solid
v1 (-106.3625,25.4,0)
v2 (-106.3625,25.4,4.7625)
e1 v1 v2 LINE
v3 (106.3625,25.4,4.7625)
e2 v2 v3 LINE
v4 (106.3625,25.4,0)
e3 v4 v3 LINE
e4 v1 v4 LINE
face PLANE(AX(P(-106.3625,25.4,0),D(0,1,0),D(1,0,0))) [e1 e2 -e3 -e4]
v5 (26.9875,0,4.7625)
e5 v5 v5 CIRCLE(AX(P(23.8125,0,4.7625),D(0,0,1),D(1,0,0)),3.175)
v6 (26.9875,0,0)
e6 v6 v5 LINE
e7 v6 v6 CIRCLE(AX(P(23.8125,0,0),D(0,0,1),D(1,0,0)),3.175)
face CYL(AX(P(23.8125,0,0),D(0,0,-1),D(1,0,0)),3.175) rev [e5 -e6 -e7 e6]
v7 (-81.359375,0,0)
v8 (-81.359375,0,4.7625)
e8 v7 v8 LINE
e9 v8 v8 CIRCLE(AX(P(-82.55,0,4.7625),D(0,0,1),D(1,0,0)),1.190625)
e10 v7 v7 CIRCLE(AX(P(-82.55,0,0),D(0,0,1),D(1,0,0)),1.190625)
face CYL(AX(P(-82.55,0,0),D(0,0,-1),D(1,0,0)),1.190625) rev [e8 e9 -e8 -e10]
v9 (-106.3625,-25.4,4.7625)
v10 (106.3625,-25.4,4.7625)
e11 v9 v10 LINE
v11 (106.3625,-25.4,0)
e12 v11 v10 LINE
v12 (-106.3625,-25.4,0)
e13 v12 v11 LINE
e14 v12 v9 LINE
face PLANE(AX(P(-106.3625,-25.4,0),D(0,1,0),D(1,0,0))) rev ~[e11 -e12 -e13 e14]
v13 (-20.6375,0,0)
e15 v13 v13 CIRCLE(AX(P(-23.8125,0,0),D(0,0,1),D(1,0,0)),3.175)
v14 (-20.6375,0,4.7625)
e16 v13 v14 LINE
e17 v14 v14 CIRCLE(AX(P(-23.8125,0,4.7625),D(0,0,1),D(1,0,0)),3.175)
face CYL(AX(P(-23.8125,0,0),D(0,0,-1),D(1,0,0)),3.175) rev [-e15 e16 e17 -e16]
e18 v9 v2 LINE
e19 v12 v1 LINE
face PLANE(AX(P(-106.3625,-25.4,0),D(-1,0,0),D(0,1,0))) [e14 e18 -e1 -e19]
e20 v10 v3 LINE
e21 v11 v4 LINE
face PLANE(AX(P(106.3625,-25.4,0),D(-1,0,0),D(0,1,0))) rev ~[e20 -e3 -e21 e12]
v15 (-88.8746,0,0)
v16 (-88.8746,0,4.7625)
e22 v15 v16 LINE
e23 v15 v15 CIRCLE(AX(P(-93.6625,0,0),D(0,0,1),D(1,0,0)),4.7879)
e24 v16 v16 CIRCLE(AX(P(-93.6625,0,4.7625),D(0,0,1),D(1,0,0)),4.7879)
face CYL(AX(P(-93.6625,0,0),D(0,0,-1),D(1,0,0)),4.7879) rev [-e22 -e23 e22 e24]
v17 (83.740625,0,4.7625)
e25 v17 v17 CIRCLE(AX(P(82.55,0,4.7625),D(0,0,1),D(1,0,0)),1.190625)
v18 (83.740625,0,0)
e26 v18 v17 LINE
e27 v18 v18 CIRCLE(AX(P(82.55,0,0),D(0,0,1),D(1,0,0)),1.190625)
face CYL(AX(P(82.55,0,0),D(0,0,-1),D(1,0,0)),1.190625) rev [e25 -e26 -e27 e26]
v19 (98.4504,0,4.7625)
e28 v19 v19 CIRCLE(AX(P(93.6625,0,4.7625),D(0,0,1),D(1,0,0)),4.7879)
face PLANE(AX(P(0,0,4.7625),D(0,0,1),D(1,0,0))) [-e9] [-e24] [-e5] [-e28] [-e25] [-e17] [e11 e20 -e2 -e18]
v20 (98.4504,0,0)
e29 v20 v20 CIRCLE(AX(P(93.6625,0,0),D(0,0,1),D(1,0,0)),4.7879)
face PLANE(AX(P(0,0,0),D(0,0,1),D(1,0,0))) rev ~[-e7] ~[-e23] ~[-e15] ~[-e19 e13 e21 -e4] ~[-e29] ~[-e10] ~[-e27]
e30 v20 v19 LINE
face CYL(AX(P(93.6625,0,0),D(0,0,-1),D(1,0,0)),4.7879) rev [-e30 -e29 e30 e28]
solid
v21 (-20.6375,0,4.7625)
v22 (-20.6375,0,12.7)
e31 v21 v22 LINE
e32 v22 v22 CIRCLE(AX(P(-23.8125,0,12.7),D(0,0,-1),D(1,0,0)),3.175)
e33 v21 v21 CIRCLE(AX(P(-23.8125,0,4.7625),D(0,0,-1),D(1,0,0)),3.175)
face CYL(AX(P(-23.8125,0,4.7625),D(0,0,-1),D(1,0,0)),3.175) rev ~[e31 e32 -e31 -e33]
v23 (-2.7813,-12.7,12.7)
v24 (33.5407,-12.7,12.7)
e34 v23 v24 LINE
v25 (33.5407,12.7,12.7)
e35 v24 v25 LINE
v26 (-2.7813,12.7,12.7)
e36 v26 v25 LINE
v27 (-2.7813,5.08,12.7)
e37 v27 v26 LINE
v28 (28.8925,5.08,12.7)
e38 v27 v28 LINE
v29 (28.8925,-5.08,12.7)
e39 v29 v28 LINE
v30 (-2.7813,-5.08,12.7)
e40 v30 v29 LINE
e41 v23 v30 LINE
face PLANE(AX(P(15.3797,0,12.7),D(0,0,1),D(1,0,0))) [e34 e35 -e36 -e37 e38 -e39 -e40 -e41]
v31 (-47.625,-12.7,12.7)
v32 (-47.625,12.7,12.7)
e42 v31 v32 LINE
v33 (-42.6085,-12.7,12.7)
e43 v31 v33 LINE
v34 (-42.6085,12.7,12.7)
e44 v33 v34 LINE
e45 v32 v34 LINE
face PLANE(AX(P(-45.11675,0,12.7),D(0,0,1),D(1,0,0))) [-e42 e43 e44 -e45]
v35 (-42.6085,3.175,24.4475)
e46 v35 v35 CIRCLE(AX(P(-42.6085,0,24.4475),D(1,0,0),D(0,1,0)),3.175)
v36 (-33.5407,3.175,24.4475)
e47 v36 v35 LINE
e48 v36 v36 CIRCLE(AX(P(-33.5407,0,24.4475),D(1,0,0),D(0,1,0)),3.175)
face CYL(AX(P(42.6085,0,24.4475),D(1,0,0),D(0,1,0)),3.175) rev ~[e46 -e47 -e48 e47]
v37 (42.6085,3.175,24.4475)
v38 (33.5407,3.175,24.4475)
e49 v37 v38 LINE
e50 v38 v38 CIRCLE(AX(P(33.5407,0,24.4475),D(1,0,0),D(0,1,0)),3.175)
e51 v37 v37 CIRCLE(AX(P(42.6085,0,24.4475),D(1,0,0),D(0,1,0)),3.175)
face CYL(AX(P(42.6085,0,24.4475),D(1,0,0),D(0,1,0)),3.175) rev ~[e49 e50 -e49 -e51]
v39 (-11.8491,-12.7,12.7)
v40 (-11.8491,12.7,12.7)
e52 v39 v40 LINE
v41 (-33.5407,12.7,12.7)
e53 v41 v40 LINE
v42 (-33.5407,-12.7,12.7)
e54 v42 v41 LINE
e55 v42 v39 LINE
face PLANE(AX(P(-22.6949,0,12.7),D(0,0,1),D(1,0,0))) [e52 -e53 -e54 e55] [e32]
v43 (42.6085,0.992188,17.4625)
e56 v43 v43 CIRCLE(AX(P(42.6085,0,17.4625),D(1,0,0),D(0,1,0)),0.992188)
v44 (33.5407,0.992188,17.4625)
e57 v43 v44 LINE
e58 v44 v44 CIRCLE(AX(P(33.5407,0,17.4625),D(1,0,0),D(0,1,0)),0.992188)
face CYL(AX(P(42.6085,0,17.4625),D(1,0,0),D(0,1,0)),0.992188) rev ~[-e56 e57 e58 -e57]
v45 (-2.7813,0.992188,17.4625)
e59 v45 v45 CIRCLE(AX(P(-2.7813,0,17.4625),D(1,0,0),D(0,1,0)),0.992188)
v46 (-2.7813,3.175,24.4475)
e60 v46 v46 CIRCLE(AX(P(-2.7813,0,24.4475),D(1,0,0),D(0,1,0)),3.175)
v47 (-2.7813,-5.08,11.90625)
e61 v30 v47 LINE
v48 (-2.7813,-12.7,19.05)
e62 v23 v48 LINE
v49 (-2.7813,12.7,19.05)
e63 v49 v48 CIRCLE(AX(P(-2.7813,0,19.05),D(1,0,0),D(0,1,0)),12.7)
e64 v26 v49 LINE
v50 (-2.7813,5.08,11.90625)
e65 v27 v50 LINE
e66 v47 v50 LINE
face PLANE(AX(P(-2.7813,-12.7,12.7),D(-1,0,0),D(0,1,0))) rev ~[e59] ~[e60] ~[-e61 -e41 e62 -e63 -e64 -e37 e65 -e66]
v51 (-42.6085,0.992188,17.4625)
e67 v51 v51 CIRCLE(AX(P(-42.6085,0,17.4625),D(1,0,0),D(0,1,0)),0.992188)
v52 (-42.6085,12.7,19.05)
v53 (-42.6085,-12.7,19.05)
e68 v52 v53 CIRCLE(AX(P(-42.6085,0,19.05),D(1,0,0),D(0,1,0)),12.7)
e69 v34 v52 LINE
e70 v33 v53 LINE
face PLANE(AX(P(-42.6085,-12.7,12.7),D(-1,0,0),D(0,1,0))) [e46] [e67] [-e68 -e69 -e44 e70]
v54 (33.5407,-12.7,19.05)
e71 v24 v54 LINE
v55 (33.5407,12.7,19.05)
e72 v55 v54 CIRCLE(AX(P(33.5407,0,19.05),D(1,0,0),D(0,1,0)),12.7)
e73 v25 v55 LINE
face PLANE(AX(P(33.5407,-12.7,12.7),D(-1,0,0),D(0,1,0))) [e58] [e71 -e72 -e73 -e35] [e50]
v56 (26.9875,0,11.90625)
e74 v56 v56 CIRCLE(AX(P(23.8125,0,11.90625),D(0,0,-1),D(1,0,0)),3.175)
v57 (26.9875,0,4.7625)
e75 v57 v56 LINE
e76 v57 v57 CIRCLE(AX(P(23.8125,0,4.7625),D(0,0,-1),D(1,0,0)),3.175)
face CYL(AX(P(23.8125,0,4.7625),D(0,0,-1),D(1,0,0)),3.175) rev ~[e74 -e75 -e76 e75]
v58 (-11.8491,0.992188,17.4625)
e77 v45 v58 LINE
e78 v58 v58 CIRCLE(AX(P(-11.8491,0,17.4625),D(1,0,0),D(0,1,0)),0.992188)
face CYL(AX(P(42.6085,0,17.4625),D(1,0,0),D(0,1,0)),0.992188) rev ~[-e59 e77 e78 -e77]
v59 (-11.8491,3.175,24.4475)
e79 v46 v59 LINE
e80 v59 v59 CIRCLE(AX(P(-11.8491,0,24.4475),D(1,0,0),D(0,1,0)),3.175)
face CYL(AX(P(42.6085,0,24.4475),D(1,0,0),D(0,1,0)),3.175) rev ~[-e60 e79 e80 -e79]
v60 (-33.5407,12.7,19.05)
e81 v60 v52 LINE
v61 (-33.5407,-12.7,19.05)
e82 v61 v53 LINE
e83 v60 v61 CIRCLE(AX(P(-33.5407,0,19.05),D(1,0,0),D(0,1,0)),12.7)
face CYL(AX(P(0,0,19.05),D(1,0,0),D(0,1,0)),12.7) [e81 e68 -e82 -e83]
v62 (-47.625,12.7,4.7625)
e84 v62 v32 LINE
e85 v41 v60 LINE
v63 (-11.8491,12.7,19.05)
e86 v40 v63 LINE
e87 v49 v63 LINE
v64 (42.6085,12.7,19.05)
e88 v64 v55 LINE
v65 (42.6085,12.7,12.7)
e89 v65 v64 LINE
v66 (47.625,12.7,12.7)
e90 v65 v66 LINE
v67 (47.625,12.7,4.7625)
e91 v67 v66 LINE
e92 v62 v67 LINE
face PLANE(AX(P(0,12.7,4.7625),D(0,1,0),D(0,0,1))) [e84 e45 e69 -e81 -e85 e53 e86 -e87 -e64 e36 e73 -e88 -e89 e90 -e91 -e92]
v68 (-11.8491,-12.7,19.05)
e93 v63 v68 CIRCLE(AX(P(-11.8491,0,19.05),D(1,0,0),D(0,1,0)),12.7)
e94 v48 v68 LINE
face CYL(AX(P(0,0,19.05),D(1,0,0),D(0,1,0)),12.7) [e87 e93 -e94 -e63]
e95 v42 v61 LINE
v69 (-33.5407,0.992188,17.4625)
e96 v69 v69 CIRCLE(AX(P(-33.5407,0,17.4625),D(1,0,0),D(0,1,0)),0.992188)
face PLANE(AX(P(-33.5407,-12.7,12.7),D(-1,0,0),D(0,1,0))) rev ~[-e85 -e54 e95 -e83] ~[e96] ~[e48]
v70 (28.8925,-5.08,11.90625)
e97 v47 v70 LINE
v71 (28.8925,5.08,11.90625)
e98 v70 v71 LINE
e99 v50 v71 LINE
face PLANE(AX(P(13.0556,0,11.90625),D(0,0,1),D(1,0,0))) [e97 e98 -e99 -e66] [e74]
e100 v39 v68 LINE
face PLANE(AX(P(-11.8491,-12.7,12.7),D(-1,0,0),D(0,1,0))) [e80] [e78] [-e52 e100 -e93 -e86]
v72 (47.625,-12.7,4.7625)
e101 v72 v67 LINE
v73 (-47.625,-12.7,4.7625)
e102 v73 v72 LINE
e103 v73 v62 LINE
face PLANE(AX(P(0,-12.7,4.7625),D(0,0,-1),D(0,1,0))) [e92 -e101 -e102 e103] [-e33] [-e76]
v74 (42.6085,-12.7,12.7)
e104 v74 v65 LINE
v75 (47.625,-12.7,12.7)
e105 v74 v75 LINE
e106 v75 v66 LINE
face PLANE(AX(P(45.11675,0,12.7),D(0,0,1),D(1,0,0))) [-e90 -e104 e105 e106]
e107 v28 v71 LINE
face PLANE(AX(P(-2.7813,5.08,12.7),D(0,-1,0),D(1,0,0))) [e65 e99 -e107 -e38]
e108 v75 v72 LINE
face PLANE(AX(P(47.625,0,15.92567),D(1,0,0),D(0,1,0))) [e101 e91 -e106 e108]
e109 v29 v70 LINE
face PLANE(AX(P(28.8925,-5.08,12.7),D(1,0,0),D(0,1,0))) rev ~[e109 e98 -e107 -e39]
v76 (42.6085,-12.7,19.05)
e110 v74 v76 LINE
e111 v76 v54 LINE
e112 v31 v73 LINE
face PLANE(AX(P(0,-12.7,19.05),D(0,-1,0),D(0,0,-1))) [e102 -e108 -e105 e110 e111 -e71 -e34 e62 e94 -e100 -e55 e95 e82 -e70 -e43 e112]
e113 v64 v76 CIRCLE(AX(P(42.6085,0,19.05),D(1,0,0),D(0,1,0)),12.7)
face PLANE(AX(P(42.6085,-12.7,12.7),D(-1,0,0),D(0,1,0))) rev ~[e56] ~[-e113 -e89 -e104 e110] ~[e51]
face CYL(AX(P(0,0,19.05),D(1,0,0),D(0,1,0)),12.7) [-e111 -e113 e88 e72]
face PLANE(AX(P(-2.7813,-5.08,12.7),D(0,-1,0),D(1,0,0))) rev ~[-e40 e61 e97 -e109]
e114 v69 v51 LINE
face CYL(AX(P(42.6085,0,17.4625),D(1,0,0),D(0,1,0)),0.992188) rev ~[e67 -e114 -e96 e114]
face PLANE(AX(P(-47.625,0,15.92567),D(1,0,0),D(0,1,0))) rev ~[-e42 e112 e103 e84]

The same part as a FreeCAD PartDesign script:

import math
import FreeCAD as App
import Part
import Sketcher

V = App.Vector
Q = App.Units.Quantity

doc = App.newDocument("Part")
body = doc.addObject("PartDesign::Body", "Body")

# Sketch on XY plane
sketch1 = body.newObject("Sketcher::SketchObject", "Sketch")
sketch1.AttachmentSupport = (doc.getObject("XY_Plane"), [""])
sketch1.MapMode = "FlatFace"
sketch1.addGeometry([
    Part.LineSegment(V(-106.3625, 25.4, 0), V(-106.3625, -25.4, 0)),  # 0
    Part.LineSegment(V(-106.3625, -25.4, 0), V(106.3625, -25.4, 0)),  # 1
    Part.LineSegment(V(106.3625, -25.4, 0), V(106.3625, 25.4, 0)),  # 2
    Part.LineSegment(V(106.3625, 25.4, 0), V(-106.3625, 25.4, 0)),  # 3
    Part.Circle(V(-93.6625, 0, 0), V(0, 0, 1), 4.7879),  # 4
    Part.Circle(V(-82.55, 0, 0), V(0, 0, 1), 1.190625),  # 5
    Part.Circle(V(-23.8125, 0, 0), V(0, 0, 1), 3.175),  # 6
    Part.Circle(V(23.8125, 0, 0), V(0, 0, 1), 3.175),  # 7
    Part.Circle(V(82.55, 0, 0), V(0, 0, 1), 1.190625),  # 8
    Part.Circle(V(93.6625, 0, 0), V(0, 0, 1), 4.7879),  # 9
], False)
sketch1.addConstraint([
    Sketcher.Constraint("Coincident", 0, 2, 1, 1),
    Sketcher.Constraint("Coincident", 1, 2, 2, 1),
    Sketcher.Constraint("Coincident", 2, 2, 3, 1),
    Sketcher.Constraint("Coincident", 3, 2, 0, 1),
    Sketcher.Constraint("Vertical", 0),
    Sketcher.Constraint("Horizontal", 1),
    Sketcher.Constraint("Vertical", 2),
    Sketcher.Constraint("Horizontal", 3),
    Sketcher.Constraint("Equal", 6, 7),
    Sketcher.Constraint("Equal", 5, 8),
    Sketcher.Constraint("Equal", 4, 9),
    Sketcher.Constraint("Symmetric", 6, 3, 7, 3, -1, 1),
    Sketcher.Constraint("Symmetric", 5, 3, 8, 3, -1, 1),
    Sketcher.Constraint("Symmetric", 4, 3, 9, 3, -1, 1),
    Sketcher.Constraint("Symmetric", 0, 2, 2, 2, -1, 1),
    Sketcher.Constraint("PointOnObject", 4, 3, -1),
    Sketcher.Constraint("PointOnObject", 5, 3, -1),
    Sketcher.Constraint("PointOnObject", 6, 3, -1),
    Sketcher.Constraint("Diameter", 6, Q("0.25 in")),
    Sketcher.Constraint("DistanceY", 0, 2, 0, 1, Q("2 in")),
    Sketcher.Constraint("Diameter", 4, Q("0.377 in")),
    Sketcher.Constraint("Diameter", 5, Q("0.09375 in")),
    Sketcher.Constraint("DistanceX", 5, 3, 8, 3, Q("6.5 in")),
    Sketcher.Constraint("DistanceX", 0, 2, 4, 3, Q("0.5 in")),
    Sketcher.Constraint("DistanceX", 1, 1, 1, 2, Q("8.375 in")),
    Sketcher.Constraint("DistanceX", 4, 3, 6, 3, Q("2.75 in")),
])
pad1 = body.newObject("PartDesign::Pad", "Pad")
pad1.Profile = sketch1
pad1.Length = Q("0.1875 in")
body2 = doc.addObject("PartDesign::Body", "Body001")

# Sketch on YZ plane
sketch2 = body2.newObject("Sketcher::SketchObject", "Sketch001")
sketch2.AttachmentSupport = (doc.getObject("YZ_Plane001"), [""])
sketch2.MapMode = "FlatFace"
sketch2.addGeometry([
    Part.LineSegment(V(-12.7, 19.05, 0), V(-12.7, 4.7625, 0)),
    Part.LineSegment(V(-12.7, 4.7625, 0), V(12.7, 4.7625, 0)),
    Part.LineSegment(V(12.7, 4.7625, 0), V(12.7, 19.05, 0)),
    Part.ArcOfCircle(Part.Circle(V(0, 19.05, 0), V(0, 0, 1), 12.7), math.radians(0), math.radians(180)),
], False)
sketch2.addConstraint([
    Sketcher.Constraint("Coincident", 0, 2, 1, 1),
    Sketcher.Constraint("Coincident", 1, 2, 2, 1),
    Sketcher.Constraint("Tangent", 2, 2, 3, 1),
    Sketcher.Constraint("Tangent", 3, 2, 0, 1),
    Sketcher.Constraint("Vertical", 0),
    Sketcher.Constraint("Horizontal", 1),
    Sketcher.Constraint("Vertical", 2),
    Sketcher.Constraint("PointOnObject", 3, 3, -2),
    Sketcher.Constraint("Radius", 3, Q("0.5 in")),
    Sketcher.Constraint("DistanceY", 0, 2, 0, 1, Q("0.5625 in")),
    Sketcher.Constraint("DistanceY", -1, 1, 3, 3, Q("0.75 in")),
])
pad2 = body2.newObject("PartDesign::Pad", "Pad001")
pad2.Profile = sketch2
pad2.Type = "TwoLengths"
pad2.Length = Q("1.875 in")
pad2.Length2 = Q("1.875 in")

# Sketch on XY plane
sketch3 = body2.newObject("Sketcher::SketchObject", "Sketch002")
sketch3.AttachmentSupport = (doc.getObject("XY_Plane001"), [""])
sketch3.MapMode = "FlatFace"
sketch3.AttachmentOffset = App.Placement(V(0, 0, 0.5 * 25.4), App.Rotation())
sketch3.addGeometry([
    Part.LineSegment(V(-47.625, 12.7, 0), V(-47.625, -12.7, 0)),  # 0
    Part.LineSegment(V(-47.625, -12.7, 0), V(-42.6085, -12.7, 0)),  # 1
    Part.LineSegment(V(-42.6085, -12.7, 0), V(-42.6085, 12.7, 0)),  # 2
    Part.LineSegment(V(-42.6085, 12.7, 0), V(-47.625, 12.7, 0)),  # 3
    Part.LineSegment(V(-33.5407, 12.7, 0), V(-33.5407, -12.7, 0)),  # 4
    Part.LineSegment(V(-33.5407, -12.7, 0), V(-11.8491, -12.7, 0)),  # 5
    Part.LineSegment(V(-11.8491, -12.7, 0), V(-11.8491, 12.7, 0)),  # 6
    Part.LineSegment(V(-11.8491, 12.7, 0), V(-33.5407, 12.7, 0)),  # 7
    Part.LineSegment(V(-2.7813, 12.7, 0), V(-2.7813, -12.7, 0)),  # 8
    Part.LineSegment(V(-2.7813, -12.7, 0), V(33.5407, -12.7, 0)),  # 9
    Part.LineSegment(V(33.5407, -12.7, 0), V(33.5407, 12.7, 0)),  # 10
    Part.LineSegment(V(33.5407, 12.7, 0), V(-2.7813, 12.7, 0)),  # 11
    Part.LineSegment(V(42.6085, 12.7, 0), V(42.6085, -12.7, 0)),  # 12
    Part.LineSegment(V(42.6085, -12.7, 0), V(47.625, -12.7, 0)),  # 13
    Part.LineSegment(V(47.625, -12.7, 0), V(47.625, 12.7, 0)),  # 14
    Part.LineSegment(V(47.625, 12.7, 0), V(42.6085, 12.7, 0)),  # 15
], False)
sketch3.addConstraint([
    Sketcher.Constraint("Coincident", 0, 2, 1, 1),
    Sketcher.Constraint("Coincident", 1, 2, 2, 1),
    Sketcher.Constraint("Coincident", 2, 2, 3, 1),
    Sketcher.Constraint("Coincident", 3, 2, 0, 1),
    Sketcher.Constraint("Coincident", 4, 2, 5, 1),
    Sketcher.Constraint("Coincident", 5, 2, 6, 1),
    Sketcher.Constraint("Coincident", 6, 2, 7, 1),
    Sketcher.Constraint("Coincident", 7, 2, 4, 1),
    Sketcher.Constraint("Coincident", 8, 2, 9, 1),
    Sketcher.Constraint("Coincident", 9, 2, 10, 1),
    Sketcher.Constraint("Coincident", 10, 2, 11, 1),
    Sketcher.Constraint("Coincident", 11, 2, 8, 1),
    Sketcher.Constraint("Coincident", 12, 2, 13, 1),
    Sketcher.Constraint("Coincident", 13, 2, 14, 1),
    Sketcher.Constraint("Coincident", 14, 2, 15, 1),
    Sketcher.Constraint("Coincident", 15, 2, 12, 1),
    Sketcher.Constraint("Vertical", 0),
    Sketcher.Constraint("Horizontal", 1),
    Sketcher.Constraint("Vertical", 2),
    Sketcher.Constraint("Horizontal", 3),
    Sketcher.Constraint("Vertical", 4),
    Sketcher.Constraint("Horizontal", 5),
    Sketcher.Constraint("Vertical", 6),
    Sketcher.Constraint("Horizontal", 7),
    Sketcher.Constraint("Vertical", 8),
    Sketcher.Constraint("Horizontal", 9),
    Sketcher.Constraint("Vertical", 10),
    Sketcher.Constraint("Horizontal", 11),
    Sketcher.Constraint("Vertical", 12),
    Sketcher.Constraint("Horizontal", 13),
    Sketcher.Constraint("Vertical", 14),
    Sketcher.Constraint("Horizontal", 15),
    Sketcher.Constraint("Symmetric", 7, 2, 9, 2, -1, 1),
    Sketcher.Constraint("Symmetric", 2, 2, 12, 2, -1, 1),
    Sketcher.Constraint("Symmetric", 0, 2, 14, 2, -1, 1),
    Sketcher.Constraint("Horizontal", 1, 2, 4, 2),
    Sketcher.Constraint("Horizontal", 3, 2, 6, 2),
    Sketcher.Constraint("Horizontal", 5, 2, 8, 2),
    Sketcher.Constraint("Horizontal", 7, 2, 10, 2),
    Sketcher.Constraint("DistanceY", 0, 2, 0, 1, Q("1 in")),
    Sketcher.Constraint("DistanceX", 9, 1, 9, 2, Q("1.43 in")),
    Sketcher.Constraint("DistanceX", 5, 1, 5, 2, Q("0.854 in")),
    Sketcher.Constraint("DistanceX", 1, 1, 1, 2, Q("0.1975 in")),
    Sketcher.Constraint("DistanceX", 0, 2, -1, 1, Q("1.875 in")),
    Sketcher.Constraint("DistanceX", 1, 2, 4, 2, Q("0.357 in")),
])
pocket1 = body2.newObject("PartDesign::Pocket", "Pocket")
pocket1.Profile = sketch3
pocket1.Length = Q("1 in")
pocket1.Reversed = True

# Sketch on XY plane
sketch4 = body2.newObject("Sketcher::SketchObject", "Sketch003")
sketch4.AttachmentSupport = (doc.getObject("XY_Plane001"), [""])
sketch4.MapMode = "FlatFace"
sketch4.AttachmentOffset = App.Placement(V(0, 0, 0.1875 * 25.4), App.Rotation())
sketch4.addGeometry([
    Part.Circle(V(-23.8125, 0, 0), V(0, 0, 1), 3.175),
    Part.Circle(V(23.8125, 0, 0), V(0, 0, 1), 3.175),
], False)
sketch4.addConstraint([
    Sketcher.Constraint("Equal", 0, 1),
    Sketcher.Constraint("Symmetric", 0, 3, 1, 3, -1, 1),
    Sketcher.Constraint("PointOnObject", 0, 3, -1),
    Sketcher.Constraint("Diameter", 0, Q("0.25 in")),
    Sketcher.Constraint("DistanceX", 0, 3, -1, 1, Q("0.9375 in")),
])
pocket2 = body2.newObject("PartDesign::Pocket", "Pocket001")
pocket2.Profile = sketch4
pocket2.Length = Q("1 in")
pocket2.Reversed = True

# Sketch on XY plane
sketch5 = body2.newObject("Sketcher::SketchObject", "Sketch004")
sketch5.AttachmentSupport = (doc.getObject("XY_Plane001"), [""])
sketch5.MapMode = "FlatFace"
sketch5.AttachmentOffset = App.Placement(V(0, 0, 0.5 * 25.4), App.Rotation())
sketch5.addGeometry([
    Part.LineSegment(V(-2.7813, 5.08, 0), V(-2.7813, -5.08, 0)),
    Part.LineSegment(V(-2.7813, -5.08, 0), V(28.8925, -5.08, 0)),
    Part.LineSegment(V(28.8925, -5.08, 0), V(28.8925, 5.08, 0)),
    Part.LineSegment(V(28.8925, 5.08, 0), V(-2.7813, 5.08, 0)),
], False)
sketch5.addConstraint([
    Sketcher.Constraint("Coincident", 0, 2, 1, 1),
    Sketcher.Constraint("Coincident", 1, 2, 2, 1),
    Sketcher.Constraint("Coincident", 2, 2, 3, 1),
    Sketcher.Constraint("Coincident", 3, 2, 0, 1),
    Sketcher.Constraint("Vertical", 0),
    Sketcher.Constraint("Horizontal", 1),
    Sketcher.Constraint("Vertical", 2),
    Sketcher.Constraint("Horizontal", 3),
    Sketcher.Constraint("DistanceY", 0, 2, 0, 1, Q("0.4 in")),
    Sketcher.Constraint("DistanceY", 0, 2, -1, 1, Q("0.2 in")),
    Sketcher.Constraint("DistanceX", 1, 1, 1, 2, Q("1.247 in")),
    Sketcher.Constraint("DistanceX", 0, 2, -1, 1, Q("0.1095 in")),
])
pocket3 = body2.newObject("PartDesign::Pocket", "Pocket002")
pocket3.Profile = sketch5
pocket3.Length = Q("0.03125 in")

# Sketch on YZ plane
sketch6 = body2.newObject("Sketcher::SketchObject", "Sketch005")
sketch6.AttachmentSupport = (doc.getObject("YZ_Plane001"), [""])
sketch6.MapMode = "FlatFace"
sketch6.AttachmentOffset = App.Placement(V(0, 0, 1.6775 * 25.4), App.Rotation())
sketch6.addGeometry([
    Part.Circle(V(0, 24.4475, 0), V(0, 0, 1), 3.175),
    Part.Circle(V(0, 17.4625, 0), V(0, 0, 1), 0.992188),
], False)
sketch6.addConstraint([
    Sketcher.Constraint("PointOnObject", 0, 3, -2),
    Sketcher.Constraint("PointOnObject", 1, 3, -2),
    Sketcher.Constraint("Diameter", 0, Q("0.25 in")),
    Sketcher.Constraint("Diameter", 1, Q("0.078125 in")),
    Sketcher.Constraint("DistanceY", -1, 1, 1, 3, Q("0.6875 in")),
    Sketcher.Constraint("DistanceY", 1, 3, 0, 3, Q("0.275 in")),
])
pocket4 = body2.newObject("PartDesign::Pocket", "Pocket003")
pocket4.Profile = sketch6
pocket4.Type = "ThroughAll"

doc.recompute()
